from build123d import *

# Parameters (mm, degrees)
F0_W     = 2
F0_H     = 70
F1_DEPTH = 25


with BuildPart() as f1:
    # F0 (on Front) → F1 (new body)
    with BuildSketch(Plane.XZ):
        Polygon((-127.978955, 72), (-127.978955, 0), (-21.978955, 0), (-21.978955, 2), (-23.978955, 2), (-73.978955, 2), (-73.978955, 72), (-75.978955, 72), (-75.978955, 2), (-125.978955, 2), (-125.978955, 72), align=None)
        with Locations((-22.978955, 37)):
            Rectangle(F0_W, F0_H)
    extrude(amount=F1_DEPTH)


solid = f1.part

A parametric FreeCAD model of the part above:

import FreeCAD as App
import Part
import Sketcher
Q = App.Units.Quantity

doc = App.newDocument("Part")
body = doc.addObject("PartDesign::Body", "Body")

sketch1 = body.newObject("Sketcher::SketchObject", "Sketch")
sketch1.AttachmentSupport = (doc.getObject("XZ_Plane"), [""])
sketch1.MapMode = "FlatFace"
sketch1.addGeometry([
    Part.LineSegment(App.Vector(-128, 72, 0), App.Vector(-128, 0, 0)),
    Part.LineSegment(App.Vector(-128, 0, 0), App.Vector(-22, 0, 0)),
    Part.LineSegment(App.Vector(-22, 0, 0), App.Vector(-22, 72, 0)),
    Part.LineSegment(App.Vector(-22, 72, 0), App.Vector(-24, 72, 0)),
    Part.LineSegment(App.Vector(-24, 72, 0), App.Vector(-24, 2, 0)),
    Part.LineSegment(App.Vector(-24, 2, 0), App.Vector(-74, 2, 0)),
    Part.LineSegment(App.Vector(-74, 2, 0), App.Vector(-74, 72, 0)),
    Part.LineSegment(App.Vector(-74, 72, 0), App.Vector(-76, 72, 0)),
    Part.LineSegment(App.Vector(-76, 72, 0), App.Vector(-76, 2, 0)),
    Part.LineSegment(App.Vector(-76, 2, 0), App.Vector(-126, 2, 0)),
    Part.LineSegment(App.Vector(-126, 2, 0), App.Vector(-126, 72, 0)),
    Part.LineSegment(App.Vector(-126, 72, 0), App.Vector(-128, 72, 0)),
], False)
sketch1.addConstraint([
    Sketcher.Constraint("Coincident", 0, 2, 1, 1),
    Sketcher.Constraint("Coincident", 1, 2, 2, 1),
    Sketcher.Constraint("Coincident", 2, 2, 3, 1),
    Sketcher.Constraint("Coincident", 3, 2, 4, 1),
    Sketcher.Constraint("Coincident", 4, 2, 5, 1),
    Sketcher.Constraint("Coincident", 5, 2, 6, 1),
    Sketcher.Constraint("Coincident", 6, 2, 7, 1),
    Sketcher.Constraint("Coincident", 7, 2, 8, 1),
    Sketcher.Constraint("Coincident", 8, 2, 9, 1),
    Sketcher.Constraint("Coincident", 9, 2, 10, 1),
    Sketcher.Constraint("Coincident", 10, 2, 11, 1),
    Sketcher.Constraint("Coincident", 11, 2, 0, 1),
    Sketcher.Constraint("Vertical", 0),
    Sketcher.Constraint("Horizontal", 1),
    Sketcher.Constraint("Vertical", 2),
    Sketcher.Constraint("Horizontal", 3),
    Sketcher.Constraint("Vertical", 4),
    Sketcher.Constraint("Horizontal", 5),
    Sketcher.Constraint("Vertical", 6),
    Sketcher.Constraint("Horizontal", 7),
    Sketcher.Constraint("Vertical", 8),
    Sketcher.Constraint("Horizontal", 9),
    Sketcher.Constraint("Vertical", 10),
    Sketcher.Constraint("Horizontal", 11),
    Sketcher.Constraint("PointOnObject", 0, 2, -1),
    Sketcher.Constraint("Horizontal", 3, 2, 6, 2),
    Sketcher.Constraint("Horizontal", 5, 2, 8, 2),
    Sketcher.Constraint("Horizontal", 7, 2, 10, 2),
    Sketcher.Constraint("Equal", 3, 7),
    Sketcher.Constraint("Equal", 5, 9),
    Sketcher.Constraint("Equal", 7, 11),
    Sketcher.Constraint("DistanceX", 1, 1, 1, 2, Q("106 mm")),
    Sketcher.Constraint("DistanceX", 3, 2, 3, 1, Q("2 mm")),
    Sketcher.Constraint("DistanceY", 0, 2, 0, 1, Q("72 mm")),
    Sketcher.Constraint("DistanceY", 4, 2, 4, 1, Q("70 mm")),
    Sketcher.Constraint("DistanceX", 0, 2, -1, 1, Q("127.978955 mm")),
])
pad1 = body.newObject("PartDesign::Pad", "Pad")
pad1.Profile = sketch1
pad1.Length = 25

doc.recompute()
